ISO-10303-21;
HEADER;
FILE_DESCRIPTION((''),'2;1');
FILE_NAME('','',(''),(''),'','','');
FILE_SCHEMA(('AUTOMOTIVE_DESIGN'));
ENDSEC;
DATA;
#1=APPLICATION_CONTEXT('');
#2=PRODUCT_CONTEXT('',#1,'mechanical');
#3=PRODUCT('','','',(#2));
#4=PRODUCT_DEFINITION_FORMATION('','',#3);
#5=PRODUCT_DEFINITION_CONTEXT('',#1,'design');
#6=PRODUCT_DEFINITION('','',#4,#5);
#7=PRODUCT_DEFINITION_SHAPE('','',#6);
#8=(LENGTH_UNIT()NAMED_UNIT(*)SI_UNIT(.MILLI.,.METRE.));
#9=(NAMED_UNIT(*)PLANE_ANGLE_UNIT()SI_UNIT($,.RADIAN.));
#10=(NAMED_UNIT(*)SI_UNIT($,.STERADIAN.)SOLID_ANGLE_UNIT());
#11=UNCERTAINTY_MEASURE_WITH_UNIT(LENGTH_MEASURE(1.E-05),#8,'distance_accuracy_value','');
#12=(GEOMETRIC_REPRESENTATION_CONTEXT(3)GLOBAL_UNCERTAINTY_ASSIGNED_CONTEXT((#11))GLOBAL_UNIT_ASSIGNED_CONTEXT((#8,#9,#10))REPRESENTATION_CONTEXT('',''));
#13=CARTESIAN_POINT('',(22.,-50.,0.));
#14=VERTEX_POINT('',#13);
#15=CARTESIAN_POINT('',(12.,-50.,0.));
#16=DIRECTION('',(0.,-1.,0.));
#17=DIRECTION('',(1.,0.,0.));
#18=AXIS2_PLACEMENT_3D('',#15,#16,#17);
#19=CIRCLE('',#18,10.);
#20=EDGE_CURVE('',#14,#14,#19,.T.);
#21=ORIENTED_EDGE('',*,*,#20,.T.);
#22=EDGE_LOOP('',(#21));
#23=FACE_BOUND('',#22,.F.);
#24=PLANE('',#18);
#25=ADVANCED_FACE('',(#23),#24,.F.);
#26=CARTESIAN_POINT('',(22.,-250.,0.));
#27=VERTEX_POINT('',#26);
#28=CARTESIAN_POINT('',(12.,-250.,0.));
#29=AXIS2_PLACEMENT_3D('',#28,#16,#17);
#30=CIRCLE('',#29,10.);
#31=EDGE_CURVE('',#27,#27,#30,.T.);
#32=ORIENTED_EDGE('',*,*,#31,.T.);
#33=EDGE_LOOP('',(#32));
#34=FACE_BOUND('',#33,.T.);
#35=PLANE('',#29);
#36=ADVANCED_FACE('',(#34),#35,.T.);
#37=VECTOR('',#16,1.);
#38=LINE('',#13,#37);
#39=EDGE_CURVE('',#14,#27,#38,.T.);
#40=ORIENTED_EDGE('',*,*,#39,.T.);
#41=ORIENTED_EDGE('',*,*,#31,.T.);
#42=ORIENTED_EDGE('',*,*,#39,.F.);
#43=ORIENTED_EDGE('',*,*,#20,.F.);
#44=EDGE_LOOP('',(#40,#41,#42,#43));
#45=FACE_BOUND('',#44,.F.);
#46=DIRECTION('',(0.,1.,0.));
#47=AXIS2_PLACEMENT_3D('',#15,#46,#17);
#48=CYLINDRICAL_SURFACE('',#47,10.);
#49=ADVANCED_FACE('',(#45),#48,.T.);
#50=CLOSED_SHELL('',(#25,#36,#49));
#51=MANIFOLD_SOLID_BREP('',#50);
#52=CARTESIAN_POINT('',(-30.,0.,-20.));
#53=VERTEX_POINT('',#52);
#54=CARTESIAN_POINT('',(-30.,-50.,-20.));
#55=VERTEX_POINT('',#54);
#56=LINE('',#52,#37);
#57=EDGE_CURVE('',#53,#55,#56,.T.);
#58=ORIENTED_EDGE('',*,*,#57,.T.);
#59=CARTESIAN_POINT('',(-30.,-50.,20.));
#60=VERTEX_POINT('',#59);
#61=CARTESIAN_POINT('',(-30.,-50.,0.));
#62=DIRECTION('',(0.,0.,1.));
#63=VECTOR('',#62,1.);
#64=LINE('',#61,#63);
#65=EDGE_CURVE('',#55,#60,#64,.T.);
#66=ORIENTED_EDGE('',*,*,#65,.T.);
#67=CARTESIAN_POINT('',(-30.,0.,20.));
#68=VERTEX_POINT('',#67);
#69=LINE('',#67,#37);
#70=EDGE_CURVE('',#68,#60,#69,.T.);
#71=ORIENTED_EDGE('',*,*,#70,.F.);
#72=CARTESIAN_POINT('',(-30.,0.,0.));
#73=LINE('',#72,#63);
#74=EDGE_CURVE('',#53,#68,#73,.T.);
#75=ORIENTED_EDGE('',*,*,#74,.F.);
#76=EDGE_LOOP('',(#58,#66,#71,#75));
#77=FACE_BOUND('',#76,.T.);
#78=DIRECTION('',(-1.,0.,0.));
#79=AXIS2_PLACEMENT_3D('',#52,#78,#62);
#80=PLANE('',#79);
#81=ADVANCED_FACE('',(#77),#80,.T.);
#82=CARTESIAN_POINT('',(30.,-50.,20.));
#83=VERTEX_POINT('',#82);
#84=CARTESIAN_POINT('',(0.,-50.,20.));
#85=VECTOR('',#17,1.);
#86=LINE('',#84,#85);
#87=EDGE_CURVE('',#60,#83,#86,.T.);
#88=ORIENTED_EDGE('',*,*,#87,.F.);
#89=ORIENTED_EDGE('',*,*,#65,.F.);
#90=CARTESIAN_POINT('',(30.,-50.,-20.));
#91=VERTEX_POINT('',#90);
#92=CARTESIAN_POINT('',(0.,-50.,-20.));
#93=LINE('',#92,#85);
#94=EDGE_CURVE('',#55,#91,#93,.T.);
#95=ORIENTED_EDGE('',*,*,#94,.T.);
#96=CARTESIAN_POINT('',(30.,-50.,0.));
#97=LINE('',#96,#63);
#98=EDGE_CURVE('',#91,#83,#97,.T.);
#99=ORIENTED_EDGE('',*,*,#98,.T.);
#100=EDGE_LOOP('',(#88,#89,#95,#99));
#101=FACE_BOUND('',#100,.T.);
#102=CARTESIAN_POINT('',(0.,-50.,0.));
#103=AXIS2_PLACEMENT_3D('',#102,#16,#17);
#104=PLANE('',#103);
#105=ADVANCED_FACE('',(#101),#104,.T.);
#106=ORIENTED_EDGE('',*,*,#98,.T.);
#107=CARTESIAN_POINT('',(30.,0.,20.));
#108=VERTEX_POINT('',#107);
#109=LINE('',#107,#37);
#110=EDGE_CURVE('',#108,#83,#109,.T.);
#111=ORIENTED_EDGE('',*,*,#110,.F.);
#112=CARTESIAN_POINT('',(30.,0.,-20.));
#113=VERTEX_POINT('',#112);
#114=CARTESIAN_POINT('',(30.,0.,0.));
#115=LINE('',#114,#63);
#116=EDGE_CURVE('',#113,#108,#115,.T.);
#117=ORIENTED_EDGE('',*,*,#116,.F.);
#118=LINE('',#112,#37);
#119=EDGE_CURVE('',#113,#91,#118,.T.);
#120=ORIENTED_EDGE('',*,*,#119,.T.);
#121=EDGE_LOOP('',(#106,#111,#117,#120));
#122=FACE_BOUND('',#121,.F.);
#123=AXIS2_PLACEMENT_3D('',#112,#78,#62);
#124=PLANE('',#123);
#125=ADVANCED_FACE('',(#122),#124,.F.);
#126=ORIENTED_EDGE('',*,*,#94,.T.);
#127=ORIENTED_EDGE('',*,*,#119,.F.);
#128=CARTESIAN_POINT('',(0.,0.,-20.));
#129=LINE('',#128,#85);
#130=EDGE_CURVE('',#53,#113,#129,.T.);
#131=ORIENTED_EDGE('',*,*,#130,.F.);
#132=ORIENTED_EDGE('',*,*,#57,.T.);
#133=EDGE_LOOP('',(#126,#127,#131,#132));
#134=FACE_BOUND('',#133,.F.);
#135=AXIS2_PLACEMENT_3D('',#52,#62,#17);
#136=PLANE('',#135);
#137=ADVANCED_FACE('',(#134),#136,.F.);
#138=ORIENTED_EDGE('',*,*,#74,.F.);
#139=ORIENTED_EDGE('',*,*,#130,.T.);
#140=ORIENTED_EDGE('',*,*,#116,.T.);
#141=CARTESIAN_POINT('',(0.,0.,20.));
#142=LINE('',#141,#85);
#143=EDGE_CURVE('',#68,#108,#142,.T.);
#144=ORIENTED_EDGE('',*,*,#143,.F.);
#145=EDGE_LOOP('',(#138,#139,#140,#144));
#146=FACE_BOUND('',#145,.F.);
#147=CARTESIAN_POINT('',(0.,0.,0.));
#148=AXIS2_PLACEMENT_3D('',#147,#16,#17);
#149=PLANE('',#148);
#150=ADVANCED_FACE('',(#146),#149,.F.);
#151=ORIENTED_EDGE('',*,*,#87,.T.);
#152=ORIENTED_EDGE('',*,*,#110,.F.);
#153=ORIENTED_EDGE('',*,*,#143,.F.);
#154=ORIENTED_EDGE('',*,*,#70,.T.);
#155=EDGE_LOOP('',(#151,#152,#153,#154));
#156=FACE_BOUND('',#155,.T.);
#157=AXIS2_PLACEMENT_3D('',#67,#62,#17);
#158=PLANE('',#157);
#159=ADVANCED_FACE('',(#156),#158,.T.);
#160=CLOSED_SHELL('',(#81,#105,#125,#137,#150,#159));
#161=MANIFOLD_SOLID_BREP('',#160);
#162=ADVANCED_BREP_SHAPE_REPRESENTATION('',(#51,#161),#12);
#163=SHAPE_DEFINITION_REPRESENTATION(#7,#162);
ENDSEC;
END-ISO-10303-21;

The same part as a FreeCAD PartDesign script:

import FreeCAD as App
import Part
import Sketcher
Q = App.Units.Quantity


def add_polygon(sketch, points):
    """Adds a closed chain of lines whose ends are joined by coincident constraints."""
    first, n = sketch.GeometryCount, len(points)
    for a, b in zip(points, points[1:] + points[:1]):
        sketch.addGeometry(Part.LineSegment(App.Vector(*a, 0), App.Vector(*b, 0)), False)
    for i in range(n):
        sketch.addConstraint(Sketcher.Constraint("Coincident", first + i, 2, first + (i + 1) % n, 1))

doc = App.newDocument("Part")
body = doc.addObject("PartDesign::Body", "Body")

# Sketch on XZ plane
sketch1 = body.newObject("Sketcher::SketchObject", "Sketch")
sketch1.AttachmentSupport = (doc.getObject("XZ_Plane"), [""])
sketch1.MapMode = "FlatFace"
add_polygon(sketch1, [(-30, 20), (-30, -20), (30, -20), (30, 20)])  # lines 0-3
sketch1.addConstraint(Sketcher.Constraint("Vertical", 0))
sketch1.addConstraint(Sketcher.Constraint("Horizontal", 1))
sketch1.addConstraint(Sketcher.Constraint("Vertical", 2))
sketch1.addConstraint(Sketcher.Constraint("Horizontal", 3))
sketch1.addConstraint(Sketcher.Constraint("Symmetric", 0, 2, 2, 2, -1, 1))
sketch1.addConstraint(Sketcher.Constraint("DistanceX", 1, 1, 1, 2, Q("60 mm")))
sketch1.addConstraint(Sketcher.Constraint("DistanceY", 0, 2, 0, 1, Q("40 mm")))
pad1 = body.newObject("PartDesign::Pad", "Pad")
pad1.Profile = sketch1
pad1.Length = 50
body2 = doc.addObject("PartDesign::Body", "Body001")

# Sketch on XZ plane
sketch2 = body2.newObject("Sketcher::SketchObject", "Sketch001")
sketch2.AttachmentSupport = (doc.getObject("XZ_Plane001"), [""])
sketch2.MapMode = "FlatFace"
sketch2.AttachmentOffset = App.Placement(App.Vector(0, 0, 50), App.Rotation())
sketch2.addGeometry(Part.Circle(App.Vector(12, 0, 0), App.Vector(0, 0, 1), 10), False)
sketch2.addConstraint(Sketcher.Constraint("PointOnObject", 0, 3, -1))
sketch2.addConstraint(Sketcher.Constraint("Diameter", 0, Q("20 mm")))
sketch2.addConstraint(Sketcher.Constraint("DistanceX", -1, 1, 0, 3, Q("12 mm")))
pad2 = body2.newObject("PartDesign::Pad", "Pad001")
pad2.Profile = sketch2
pad2.Length = 200

doc.recompute()
